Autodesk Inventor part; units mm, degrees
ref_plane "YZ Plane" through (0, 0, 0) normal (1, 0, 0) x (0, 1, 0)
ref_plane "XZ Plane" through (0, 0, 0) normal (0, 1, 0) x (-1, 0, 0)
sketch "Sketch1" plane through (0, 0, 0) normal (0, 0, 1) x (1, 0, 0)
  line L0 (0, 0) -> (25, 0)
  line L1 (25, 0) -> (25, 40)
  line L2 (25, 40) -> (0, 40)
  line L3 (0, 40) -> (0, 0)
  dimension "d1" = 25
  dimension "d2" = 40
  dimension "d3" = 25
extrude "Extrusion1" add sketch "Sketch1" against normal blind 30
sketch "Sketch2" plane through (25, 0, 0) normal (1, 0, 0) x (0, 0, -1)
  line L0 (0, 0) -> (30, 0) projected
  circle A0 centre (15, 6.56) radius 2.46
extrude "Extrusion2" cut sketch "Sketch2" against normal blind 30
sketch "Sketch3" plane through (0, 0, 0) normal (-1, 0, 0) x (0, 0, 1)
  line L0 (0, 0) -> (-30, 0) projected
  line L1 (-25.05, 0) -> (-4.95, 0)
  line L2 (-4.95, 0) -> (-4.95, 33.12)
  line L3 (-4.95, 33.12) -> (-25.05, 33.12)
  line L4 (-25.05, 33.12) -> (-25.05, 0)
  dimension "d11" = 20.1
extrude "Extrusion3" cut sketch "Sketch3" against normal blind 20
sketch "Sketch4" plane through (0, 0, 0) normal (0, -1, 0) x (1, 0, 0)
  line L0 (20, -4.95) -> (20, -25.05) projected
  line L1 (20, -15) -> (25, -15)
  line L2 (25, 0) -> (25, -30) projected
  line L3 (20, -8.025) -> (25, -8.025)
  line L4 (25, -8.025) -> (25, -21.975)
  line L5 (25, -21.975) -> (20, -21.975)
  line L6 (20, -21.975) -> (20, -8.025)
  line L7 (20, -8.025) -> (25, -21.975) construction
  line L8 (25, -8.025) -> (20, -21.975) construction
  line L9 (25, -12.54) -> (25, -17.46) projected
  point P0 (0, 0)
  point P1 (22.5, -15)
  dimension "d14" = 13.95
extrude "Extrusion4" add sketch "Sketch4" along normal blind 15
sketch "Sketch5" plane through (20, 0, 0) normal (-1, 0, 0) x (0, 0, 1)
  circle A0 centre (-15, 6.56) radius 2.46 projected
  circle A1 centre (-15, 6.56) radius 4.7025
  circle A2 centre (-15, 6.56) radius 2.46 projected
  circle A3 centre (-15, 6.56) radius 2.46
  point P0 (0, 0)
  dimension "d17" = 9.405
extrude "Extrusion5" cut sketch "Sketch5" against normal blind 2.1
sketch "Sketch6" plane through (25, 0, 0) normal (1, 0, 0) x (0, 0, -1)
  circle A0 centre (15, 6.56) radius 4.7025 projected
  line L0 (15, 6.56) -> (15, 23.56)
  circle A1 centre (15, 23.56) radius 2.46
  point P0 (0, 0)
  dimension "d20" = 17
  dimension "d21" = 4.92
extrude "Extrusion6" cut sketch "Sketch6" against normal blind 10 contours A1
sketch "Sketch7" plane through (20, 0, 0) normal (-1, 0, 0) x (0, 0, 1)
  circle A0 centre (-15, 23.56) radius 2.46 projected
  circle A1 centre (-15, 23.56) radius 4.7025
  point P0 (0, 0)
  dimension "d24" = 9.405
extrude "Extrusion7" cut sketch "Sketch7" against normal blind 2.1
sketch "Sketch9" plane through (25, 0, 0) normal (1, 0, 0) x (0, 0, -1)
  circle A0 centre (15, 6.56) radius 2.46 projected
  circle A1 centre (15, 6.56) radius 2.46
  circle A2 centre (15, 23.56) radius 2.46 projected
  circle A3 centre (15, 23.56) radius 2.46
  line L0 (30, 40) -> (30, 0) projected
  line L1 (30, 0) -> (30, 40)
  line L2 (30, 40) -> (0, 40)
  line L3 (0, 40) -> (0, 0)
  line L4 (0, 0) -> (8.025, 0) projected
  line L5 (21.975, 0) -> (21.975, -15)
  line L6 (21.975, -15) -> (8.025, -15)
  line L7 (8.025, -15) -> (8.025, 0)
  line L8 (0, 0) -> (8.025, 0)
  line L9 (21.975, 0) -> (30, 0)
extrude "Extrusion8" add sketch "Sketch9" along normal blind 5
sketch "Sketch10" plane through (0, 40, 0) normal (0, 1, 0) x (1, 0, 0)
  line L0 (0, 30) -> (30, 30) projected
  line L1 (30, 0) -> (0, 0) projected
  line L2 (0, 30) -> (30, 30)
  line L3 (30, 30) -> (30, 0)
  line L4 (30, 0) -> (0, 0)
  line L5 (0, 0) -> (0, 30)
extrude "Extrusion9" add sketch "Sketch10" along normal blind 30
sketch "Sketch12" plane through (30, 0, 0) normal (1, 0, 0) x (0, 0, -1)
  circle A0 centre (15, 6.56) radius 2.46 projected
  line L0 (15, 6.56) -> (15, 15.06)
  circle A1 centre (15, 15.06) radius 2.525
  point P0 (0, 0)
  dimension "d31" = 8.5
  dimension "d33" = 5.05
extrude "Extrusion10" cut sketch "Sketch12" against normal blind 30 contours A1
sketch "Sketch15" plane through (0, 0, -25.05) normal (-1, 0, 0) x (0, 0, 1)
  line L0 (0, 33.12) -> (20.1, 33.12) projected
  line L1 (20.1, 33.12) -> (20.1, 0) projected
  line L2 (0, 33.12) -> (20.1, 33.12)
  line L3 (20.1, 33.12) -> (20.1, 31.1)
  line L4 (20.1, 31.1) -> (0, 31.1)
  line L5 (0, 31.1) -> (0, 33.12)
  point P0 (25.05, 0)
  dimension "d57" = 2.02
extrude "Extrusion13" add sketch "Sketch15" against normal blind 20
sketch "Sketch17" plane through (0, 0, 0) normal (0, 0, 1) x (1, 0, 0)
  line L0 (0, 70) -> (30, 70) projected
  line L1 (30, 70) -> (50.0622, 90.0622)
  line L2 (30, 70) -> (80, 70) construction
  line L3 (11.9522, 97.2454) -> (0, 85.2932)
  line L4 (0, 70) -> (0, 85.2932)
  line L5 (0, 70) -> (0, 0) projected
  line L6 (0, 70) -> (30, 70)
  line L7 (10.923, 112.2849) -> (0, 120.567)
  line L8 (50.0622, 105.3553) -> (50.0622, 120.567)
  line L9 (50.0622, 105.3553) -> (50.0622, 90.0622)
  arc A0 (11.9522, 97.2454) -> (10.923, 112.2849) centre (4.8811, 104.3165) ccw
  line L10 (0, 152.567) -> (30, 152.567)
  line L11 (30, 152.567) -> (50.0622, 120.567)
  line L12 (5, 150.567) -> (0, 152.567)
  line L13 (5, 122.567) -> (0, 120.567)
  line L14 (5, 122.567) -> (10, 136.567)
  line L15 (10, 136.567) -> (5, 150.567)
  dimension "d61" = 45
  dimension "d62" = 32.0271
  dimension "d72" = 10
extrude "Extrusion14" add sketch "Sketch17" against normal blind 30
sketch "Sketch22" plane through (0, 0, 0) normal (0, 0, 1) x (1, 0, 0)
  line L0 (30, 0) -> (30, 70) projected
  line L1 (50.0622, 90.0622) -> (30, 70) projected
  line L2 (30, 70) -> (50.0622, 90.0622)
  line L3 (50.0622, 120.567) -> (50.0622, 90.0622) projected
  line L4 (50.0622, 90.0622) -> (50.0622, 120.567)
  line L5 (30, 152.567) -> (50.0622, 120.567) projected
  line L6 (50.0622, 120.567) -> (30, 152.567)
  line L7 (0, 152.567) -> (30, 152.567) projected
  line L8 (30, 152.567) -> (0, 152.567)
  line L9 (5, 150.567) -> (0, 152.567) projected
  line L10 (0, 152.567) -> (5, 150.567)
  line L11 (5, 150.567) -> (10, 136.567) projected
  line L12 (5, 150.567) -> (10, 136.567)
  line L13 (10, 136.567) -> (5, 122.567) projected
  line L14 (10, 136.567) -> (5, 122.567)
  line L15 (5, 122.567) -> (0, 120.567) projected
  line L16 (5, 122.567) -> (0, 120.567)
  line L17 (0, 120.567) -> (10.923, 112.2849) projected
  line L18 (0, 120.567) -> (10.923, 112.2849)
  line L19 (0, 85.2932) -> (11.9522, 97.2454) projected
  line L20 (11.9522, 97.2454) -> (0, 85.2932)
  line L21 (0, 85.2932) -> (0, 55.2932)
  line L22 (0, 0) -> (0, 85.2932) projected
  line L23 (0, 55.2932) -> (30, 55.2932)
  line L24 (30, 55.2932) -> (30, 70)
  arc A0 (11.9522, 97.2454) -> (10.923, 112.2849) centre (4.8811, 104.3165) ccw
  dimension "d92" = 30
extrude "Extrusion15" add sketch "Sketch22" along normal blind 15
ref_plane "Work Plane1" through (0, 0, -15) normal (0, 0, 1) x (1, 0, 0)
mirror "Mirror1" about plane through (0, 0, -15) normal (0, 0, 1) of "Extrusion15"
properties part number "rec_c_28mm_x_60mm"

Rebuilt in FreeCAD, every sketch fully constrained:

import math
import FreeCAD as App
import Part
import Sketcher
from FreeCAD import Vector
Q = App.Units.Quantity

doc = App.newDocument("Part")
body = doc.addObject("PartDesign::Body", "Body")

sketch1 = body.newObject("Sketcher::SketchObject", "Sketch")
sketch1.AttachmentSupport = (doc.getObject("XY_Plane"), [""])
sketch1.MapMode = "FlatFace"
sketch1.addGeometry([
    Part.LineSegment(Vector(0, 40, 0), Vector(0, 0, 0)),
    Part.LineSegment(Vector(0, 0, 0), Vector(25, 0, 0)),
    Part.LineSegment(Vector(25, 0, 0), Vector(25, 40, 0)),
    Part.LineSegment(Vector(25, 40, 0), Vector(0, 40, 0)),
], False)
sketch1.addConstraint([
    Sketcher.Constraint("Coincident", 0, 2, 1, 1),
    Sketcher.Constraint("Coincident", 1, 2, 2, 1),
    Sketcher.Constraint("Coincident", 2, 2, 3, 1),
    Sketcher.Constraint("Coincident", 3, 2, 0, 1),
    Sketcher.Constraint("Vertical", 0),
    Sketcher.Constraint("Horizontal", 1),
    Sketcher.Constraint("Vertical", 2),
    Sketcher.Constraint("Horizontal", 3),
    Sketcher.Constraint("Coincident", 0, 2, -1, 1),
    Sketcher.Constraint("DistanceX", 1, 1, 1, 2, 25.0),
    Sketcher.Constraint("DistanceY", 0, 2, 0, 1, 40.0),
])
pad1 = body.newObject("PartDesign::Pad", "Pad")
pad1.Profile = sketch1
pad1.Length = 30
pad1.Reversed = True

sketch2 = body.newObject("Sketcher::SketchObject", "Sketch001")
sketch2.AttachmentSupport = (doc.getObject("YZ_Plane"), [""])
sketch2.MapMode = "FlatFace"
sketch2.AttachmentOffset = App.Placement(Vector(0, 0, 25), App.Rotation())
sketch2.addGeometry(Part.Circle(Vector(6.6, -15, 0), Vector(0, 0, 1), 2.5), False)
sketch2.addConstraint([
    Sketcher.Constraint("Diameter", 0, 4.92),
    Sketcher.Constraint("DistanceY", 0, 3, -1, 1, 15.0),
    Sketcher.Constraint("DistanceX", -1, 1, 0, 3, 6.56),
])
pocket1 = body.newObject("PartDesign::Pocket", "Pocket")
pocket1.Profile = sketch2
pocket1.Length = 30

sketch3 = body.newObject("Sketcher::SketchObject", "Sketch002")
sketch3.AttachmentSupport = (doc.getObject("YZ_Plane"), [""])
sketch3.MapMode = "FlatFace"
sketch3.addGeometry([
    Part.LineSegment(Vector(0, -25, 0), Vector(0, -5, 0)),
    Part.LineSegment(Vector(0, -5, 0), Vector(33, -5, 0)),
    Part.LineSegment(Vector(33, -5, 0), Vector(33, -25, 0)),
    Part.LineSegment(Vector(33, -25, 0), Vector(0, -25, 0)),
], False)
sketch3.addConstraint([
    Sketcher.Constraint("Coincident", 0, 2, 1, 1),
    Sketcher.Constraint("Coincident", 1, 2, 2, 1),
    Sketcher.Constraint("Coincident", 2, 2, 3, 1),
    Sketcher.Constraint("Coincident", 3, 2, 0, 1),
    Sketcher.Constraint("Vertical", 0),
    Sketcher.Constraint("Horizontal", 1),
    Sketcher.Constraint("Vertical", 2),
    Sketcher.Constraint("Horizontal", 3),
    Sketcher.Constraint("PointOnObject", 0, 2, -2),
    Sketcher.Constraint("DistanceY", 0, 1, 0, 2, 20.1),
    Sketcher.Constraint("DistanceX", 1, 1, 1, 2, 33.12),
    Sketcher.Constraint("DistanceY", 0, 2, -1, 1, 4.95),
])
pocket2 = body.newObject("PartDesign::Pocket", "Pocket001")
pocket2.Profile = sketch3
pocket2.Length = 20
pocket2.Reversed = True

sketch4 = body.newObject("Sketcher::SketchObject", "Sketch003")
sketch4.AttachmentSupport = (doc.getObject("XZ_Plane"), [""])
sketch4.MapMode = "FlatFace"
sketch4.addGeometry([
    Part.LineSegment(Vector(25, -8, 0), Vector(20, -8, 0)),
    Part.LineSegment(Vector(20, -8, 0), Vector(20, -22, 0)),
    Part.LineSegment(Vector(20, -22, 0), Vector(25, -22, 0)),
    Part.LineSegment(Vector(25, -22, 0), Vector(25, -8, 0)),
], False)
sketch4.addConstraint([
    Sketcher.Constraint("Coincident", 0, 2, 1, 1),
    Sketcher.Constraint("Coincident", 1, 2, 2, 1),
    Sketcher.Constraint("Coincident", 2, 2, 3, 1),
    Sketcher.Constraint("Coincident", 3, 2, 0, 1),
    Sketcher.Constraint("Horizontal", 0),
    Sketcher.Constraint("Vertical", 1),
    Sketcher.Constraint("Horizontal", 2),
    Sketcher.Constraint("Vertical", 3),
    Sketcher.Constraint("DistanceY", 1, 2, 1, 1, 13.95),
    Sketcher.Constraint("DistanceX", 0, 2, 0, 1, 5.0),
    Sketcher.Constraint("DistanceX", -1, 1, 0, 2, 20.0),
    Sketcher.Constraint("DistanceY", 0, 2, -1, 1, 8.025),
])
pad2 = body.newObject("PartDesign::Pad", "Pad001")
pad2.Profile = sketch4
pad2.Length = 15

sketch5 = body.newObject("Sketcher::SketchObject", "Sketch004")
sketch5.AttachmentSupport = (doc.getObject("YZ_Plane"), [""])
sketch5.MapMode = "FlatFace"
sketch5.AttachmentOffset = App.Placement(Vector(0, 0, 20), App.Rotation())
sketch5.addGeometry([
    Part.Circle(Vector(6.6, -15, 0), Vector(0, 0, 1), 4.7),
    Part.Circle(Vector(6.6, -15, 0), Vector(0, 0, 1), 2.5),
], False)
sketch5.addConstraint([
    Sketcher.Constraint("Coincident", 1, 3, 0, 3),
    Sketcher.Constraint("Diameter", 0, 9.405),
    Sketcher.Constraint("Diameter", 1, 4.92),
    Sketcher.Constraint("DistanceY", 0, 3, -1, 1, 15.0),
    Sketcher.Constraint("DistanceX", -1, 1, 0, 3, 6.56),
])
pocket3 = body.newObject("PartDesign::Pocket", "Pocket002")
pocket3.Profile = sketch5
pocket3.Length = 2.1
pocket3.Reversed = True

sketch6 = body.newObject("Sketcher::SketchObject", "Sketch005")
sketch6.AttachmentSupport = (doc.getObject("YZ_Plane"), [""])
sketch6.MapMode = "FlatFace"
sketch6.AttachmentOffset = App.Placement(Vector(0, 0, 25), App.Rotation())
sketch6.addGeometry(Part.Circle(Vector(23.6, -15, 0), Vector(0, 0, 1), 2.5), False)
sketch6.addConstraint([
    Sketcher.Constraint("Diameter", 0, 4.92),
    Sketcher.Constraint("DistanceY", 0, 3, -1, 1, 15.0),
    Sketcher.Constraint("DistanceX", -1, 1, 0, 3, 23.56),
])
pocket4 = body.newObject("PartDesign::Pocket", "Pocket003")
pocket4.Profile = sketch6
pocket4.Length = 10

sketch7 = body.newObject("Sketcher::SketchObject", "Sketch006")
sketch7.AttachmentSupport = (doc.getObject("YZ_Plane"), [""])
sketch7.MapMode = "FlatFace"
sketch7.AttachmentOffset = App.Placement(Vector(0, 0, 20), App.Rotation())
sketch7.addGeometry([
    Part.Circle(Vector(23.6, -15, 0), Vector(0, 0, 1), 4.7),
    Part.Circle(Vector(23.6, -15, 0), Vector(0, 0, 1), 2.5),
], False)
sketch7.addConstraint([
    Sketcher.Constraint("Coincident", 1, 3, 0, 3),
    Sketcher.Constraint("Diameter", 0, 9.405),
    Sketcher.Constraint("Diameter", 1, 4.92),
    Sketcher.Constraint("DistanceY", 0, 3, -1, 1, 15.0),
    Sketcher.Constraint("DistanceX", -1, 1, 0, 3, 23.56),
])
pocket5 = body.newObject("PartDesign::Pocket", "Pocket004")
pocket5.Profile = sketch7
pocket5.Length = 2.1
pocket5.Reversed = True

sketch8 = body.newObject("Sketcher::SketchObject", "Sketch007")
sketch8.AttachmentSupport = (doc.getObject("YZ_Plane"), [""])
sketch8.MapMode = "FlatFace"
sketch8.AttachmentOffset = App.Placement(Vector(0, 0, 25), App.Rotation())
sketch8.addGeometry([
    Part.LineSegment(Vector(0, -30, 0), Vector(40, -30, 0)),
    Part.LineSegment(Vector(40, -30, 0), Vector(40, 0, 0)),
    Part.LineSegment(Vector(40, 0, 0), Vector(0, 0, 0)),
    Part.LineSegment(Vector(0, 0, 0), Vector(0, -8, 0)),
    Part.LineSegment(Vector(0, -8, 0), Vector(-15, -8, 0)),
    Part.LineSegment(Vector(-15, -8, 0), Vector(-15, -22, 0)),
    Part.LineSegment(Vector(-15, -22, 0), Vector(0, -22, 0)),
    Part.LineSegment(Vector(0, -22, 0), Vector(0, -30, 0)),
    Part.Circle(Vector(6.6, -15, 0), Vector(0, 0, 1), 2.5),
    Part.Circle(Vector(23.6, -15, 0), Vector(0, 0, 1), 2.5),
], False)
sketch8.addConstraint([
    Sketcher.Constraint("Coincident", 0, 2, 1, 1),
    Sketcher.Constraint("Coincident", 1, 2, 2, 1),
    Sketcher.Constraint("Coincident", 2, 2, 3, 1),
    Sketcher.Constraint("Coincident", 3, 2, 4, 1),
    Sketcher.Constraint("Coincident", 4, 2, 5, 1),
    Sketcher.Constraint("Coincident", 5, 2, 6, 1),
    Sketcher.Constraint("Coincident", 6, 2, 7, 1),
    Sketcher.Constraint("Coincident", 7, 2, 0, 1),
    Sketcher.Constraint("Horizontal", 0),
    Sketcher.Constraint("Vertical", 1),
    Sketcher.Constraint("Horizontal", 2),
    Sketcher.Constraint("Vertical", 3),
    Sketcher.Constraint("Horizontal", 4),
    Sketcher.Constraint("Vertical", 5),
    Sketcher.Constraint("Horizontal", 6),
    Sketcher.Constraint("Vertical", 7),
    Sketcher.Constraint("Coincident", 2, 2, -1, 1),
    Sketcher.Constraint("Equal", 8, 9),
    Sketcher.Constraint("PointOnObject", 6, 2, -2),
    Sketcher.Constraint("Horizontal", 8, 3, 9, 3),
    Sketcher.Constraint("Equal", 3, 7),
    Sketcher.Constraint("Diameter", 8, 4.92),
    Sketcher.Constraint("DistanceX", 0, 1, 0, 2, 40.0),
    Sketcher.Constraint("DistanceX", 4, 2, 4, 1, 15.0),
    Sketcher.Constraint("DistanceY", 1, 1, 1, 2, 30.0),
    Sketcher.Constraint("DistanceY", 8, 3, -1, 1, 15.0),
    Sketcher.Constraint("DistanceX", 8, 3, 9, 3, 17.0),
    Sketcher.Constraint("DistanceY", 5, 2, 5, 1, 13.95),
    Sketcher.Constraint("DistanceX", -1, 1, 8, 3, 6.56),
])
pad3 = body.newObject("PartDesign::Pad", "Pad002")
pad3.Profile = sketch8
pad3.Length = 5

sketch9 = body.newObject("Sketcher::SketchObject", "Sketch008")
sketch9.AttachmentSupport = (doc.getObject("XZ_Plane"), [""])
sketch9.MapMode = "FlatFace"
sketch9.AttachmentOffset = App.Placement(Vector(0, 0, -40), App.Rotation())
sketch9.addGeometry([
    Part.LineSegment(Vector(30, -30, 0), Vector(0, -30, 0)),
    Part.LineSegment(Vector(0, -30, 0), Vector(0, 0, 0)),
    Part.LineSegment(Vector(0, 0, 0), Vector(30, 0, 0)),
    Part.LineSegment(Vector(30, 0, 0), Vector(30, -30, 0)),
], False)
sketch9.addConstraint([
    Sketcher.Constraint("Coincident", 0, 2, 1, 1),
    Sketcher.Constraint("Coincident", 1, 2, 2, 1),
    Sketcher.Constraint("Coincident", 2, 2, 3, 1),
    Sketcher.Constraint("Coincident", 3, 2, 0, 1),
    Sketcher.Constraint("Horizontal", 0),
    Sketcher.Constraint("Vertical", 1),
    Sketcher.Constraint("Horizontal", 2),
    Sketcher.Constraint("Vertical", 3),
    Sketcher.Constraint("Coincident", 1, 2, -1, 1),
    Sketcher.Constraint("Equal", 2, 1),
    Sketcher.Constraint("DistanceX", 0, 2, 0, 1, 30.0),
])
pad4 = body.newObject("PartDesign::Pad", "Pad003")
pad4.Profile = sketch9
pad4.Length = 30
pad4.Reversed = True

sketch10 = body.newObject("Sketcher::SketchObject", "Sketch009")
sketch10.AttachmentSupport = (doc.getObject("YZ_Plane"), [""])
sketch10.MapMode = "FlatFace"
sketch10.AttachmentOffset = App.Placement(Vector(0, 0, 30), App.Rotation())
sketch10.addGeometry(Part.Circle(Vector(15.1, -15, 0), Vector(0, 0, 1), 2.5), False)
sketch10.addConstraint([
    Sketcher.Constraint("Diameter", 0, 5.05),
    Sketcher.Constraint("DistanceY", 0, 3, -1, 1, 15.0),
    Sketcher.Constraint("DistanceX", -1, 1, 0, 3, 15.06),
])
pocket6 = body.newObject("PartDesign::Pocket", "Pocket005")
pocket6.Profile = sketch10
pocket6.Length = 30

sketch11 = body.newObject("Sketcher::SketchObject", "Sketch010")
sketch11.AttachmentSupport = (doc.getObject("YZ_Plane"), [""])
sketch11.MapMode = "FlatFace"
sketch11.addGeometry([
    Part.LineSegment(Vector(33.1, -5, 0), Vector(33.1, -25.1, 0)),
    Part.LineSegment(Vector(33.1, -25.1, 0), Vector(31.1, -25.1, 0)),
    Part.LineSegment(Vector(31.1, -25.1, 0), Vector(31.1, -5, 0)),
    Part.LineSegment(Vector(31.1, -5, 0), Vector(33.1, -5, 0)),
], False)
sketch11.addConstraint([
    Sketcher.Constraint("Coincident", 0, 2, 1, 1),
    Sketcher.Constraint("Coincident", 1, 2, 2, 1),
    Sketcher.Constraint("Coincident", 2, 2, 3, 1),
    Sketcher.Constraint("Coincident", 3, 2, 0, 1),
    Sketcher.Constraint("Vertical", 0),
    Sketcher.Constraint("Horizontal", 1),
    Sketcher.Constraint("Vertical", 2),
    Sketcher.Constraint("Horizontal", 3),
    Sketcher.Constraint("DistanceX", 1, 2, 1, 1, 2.02),
    Sketcher.Constraint("DistanceY", 0, 2, 0, 1, 20.1),
    Sketcher.Constraint("DistanceX", -1, 1, 1, 2, 31.1),
    Sketcher.Constraint("DistanceY", 0, 2, -1, 1, 25.05),
])
pad5 = body.newObject("PartDesign::Pad", "Pad004")
pad5.Profile = sketch11
pad5.Length = 20

sketch12 = body.newObject("Sketcher::SketchObject", "Sketch011")
sketch12.AttachmentSupport = (doc.getObject("XY_Plane"), [""])
sketch12.MapMode = "FlatFace"
sketch12.addGeometry([
    Part.LineSegment(Vector(0, 85, 0), Vector(0, 70, 0)),
    Part.LineSegment(Vector(0, 70, 0), Vector(30, 70, 0)),
    Part.LineSegment(Vector(30, 70, 0), Vector(50, 90, 0)),
    Part.LineSegment(Vector(50, 90, 0), Vector(50, 121, 0)),
    Part.LineSegment(Vector(50, 121, 0), Vector(30, 153, 0)),
    Part.LineSegment(Vector(30, 153, 0), Vector(0, 153, 0)),
    Part.LineSegment(Vector(0, 153, 0), Vector(5, 151, 0)),
    Part.LineSegment(Vector(5, 151, 0), Vector(10, 137, 0)),
    Part.LineSegment(Vector(10, 137, 0), Vector(5, 123, 0)),
    Part.LineSegment(Vector(5, 123, 0), Vector(0, 121, 0)),
    Part.LineSegment(Vector(0, 121, 0), Vector(11, 112, 0)),
    Part.ArcOfCircle(Part.Circle(Vector(5, 104, 0), Vector(0, 0, 1), 10), math.radians(-45), math.radians(53)),
    Part.LineSegment(Vector(12, 97, 0), Vector(0, 85, 0)),
], False)
sketch12.addConstraint([
    Sketcher.Constraint("Coincident", 0, 2, 1, 1),
    Sketcher.Constraint("Coincident", 1, 2, 2, 1),
    Sketcher.Constraint("Coincident", 2, 2, 3, 1),
    Sketcher.Constraint("Coincident", 3, 2, 4, 1),
    Sketcher.Constraint("Coincident", 4, 2, 5, 1),
    Sketcher.Constraint("Coincident", 5, 2, 6, 1),
    Sketcher.Constraint("Coincident", 6, 2, 7, 1),
    Sketcher.Constraint("Coincident", 7, 2, 8, 1),
    Sketcher.Constraint("Coincident", 8, 2, 9, 1),
    Sketcher.Constraint("Coincident", 9, 2, 10, 1),
    Sketcher.Constraint("Tangent", 10, 2, 11, 2),
    Sketcher.Constraint("Tangent", 11, 1, 12, 1),
    Sketcher.Constraint("Coincident", 12, 2, 0, 1),
    Sketcher.Constraint("Vertical", 0),
    Sketcher.Constraint("Horizontal", 1),
    Sketcher.Constraint("Vertical", 3),
    Sketcher.Constraint("Horizontal", 5),
    Sketcher.Constraint("PointOnObject", 0, 2, -2),
    Sketcher.Constraint("PointOnObject", 5, 2, -2),
    Sketcher.Constraint("PointOnObject", 9, 2, -2),
    Sketcher.Constraint("Parallel", 2, 12),
    Sketcher.Constraint("Horizontal", 3, 2, 9, 2),
    Sketcher.Constraint("Vertical", 1, 2, 4, 2),
    Sketcher.Constraint("Vertical", 6, 2, 8, 2),
    Sketcher.Constraint("Equal", 7, 8),
    Sketcher.Constraint("Equal", 6, 9),
    Sketcher.Constraint("Radius", 11, 10.0),
    Sketcher.Constraint("Angle", 2, Q("45 deg")),
    Sketcher.Constraint("DistanceX", -1, 1, 7, 2, 10.0),
    Sketcher.Constraint("DistanceX", 1, 1, 1, 2, 30.0),
    Sketcher.Constraint("DistanceY", -1, 1, 0, 2, 70.0),
    Sketcher.Constraint("DistanceX", -1, 1, 6, 2, 5.0),
    Sketcher.Constraint("DistanceY", 3, 2, 4, 2, 32.0),
    Sketcher.Constraint("DistanceY", 6, 2, 5, 2, 2.0),
    Sketcher.Constraint("Angle", 10, Q("-37.1703 deg")),
    Sketcher.Constraint("Distance", 4, 37.769),
    Sketcher.Constraint("Distance", 12, 16.903),
    Sketcher.Constraint("DistanceY", 0, 2, 0, 1, 15.2932),
])
pad6 = body.newObject("PartDesign::Pad", "Pad005")
pad6.Profile = sketch12
pad6.Length = 30
pad6.Reversed = True

sketch13 = body.newObject("Sketcher::SketchObject", "Sketch012")
sketch13.AttachmentSupport = (doc.getObject("XY_Plane"), [""])
sketch13.MapMode = "FlatFace"
sketch13.addGeometry([
    Part.LineSegment(Vector(0, 55, 0), Vector(30, 55, 0)),
    Part.LineSegment(Vector(30, 55, 0), Vector(30, 70, 0)),
    Part.LineSegment(Vector(30, 70, 0), Vector(50, 90, 0)),
    Part.LineSegment(Vector(50, 90, 0), Vector(50, 121, 0)),
    Part.LineSegment(Vector(50, 121, 0), Vector(30, 153, 0)),
    Part.LineSegment(Vector(30, 153, 0), Vector(0, 153, 0)),
    Part.LineSegment(Vector(0, 153, 0), Vector(5, 151, 0)),
    Part.LineSegment(Vector(5, 151, 0), Vector(10, 137, 0)),
    Part.LineSegment(Vector(10, 137, 0), Vector(5, 123, 0)),
    Part.LineSegment(Vector(5, 123, 0), Vector(0, 121, 0)),
    Part.LineSegment(Vector(0, 121, 0), Vector(11, 112, 0)),
    Part.ArcOfCircle(Part.Circle(Vector(5, 104, 0), Vector(0, 0, 1), 10), math.radians(-45), math.radians(53)),
    Part.LineSegment(Vector(12, 97, 0), Vector(0, 85, 0)),
    Part.LineSegment(Vector(0, 85, 0), Vector(0, 55, 0)),
], False)
sketch13.addConstraint([
    Sketcher.Constraint("Coincident", 0, 2, 1, 1),
    Sketcher.Constraint("Coincident", 1, 2, 2, 1),
    Sketcher.Constraint("Coincident", 2, 2, 3, 1),
    Sketcher.Constraint("Coincident", 3, 2, 4, 1),
    Sketcher.Constraint("Coincident", 4, 2, 5, 1),
    Sketcher.Constraint("Coincident", 5, 2, 6, 1),
    Sketcher.Constraint("Coincident", 6, 2, 7, 1),
    Sketcher.Constraint("Coincident", 7, 2, 8, 1),
    Sketcher.Constraint("Coincident", 8, 2, 9, 1),
    Sketcher.Constraint("Coincident", 9, 2, 10, 1),
    Sketcher.Constraint("Tangent", 10, 2, 11, 2),
    Sketcher.Constraint("Tangent", 11, 1, 12, 1),
    Sketcher.Constraint("Coincident", 12, 2, 13, 1),
    Sketcher.Constraint("Coincident", 13, 2, 0, 1),
    Sketcher.Constraint("Horizontal", 0),
    Sketcher.Constraint("Vertical", 1),
    Sketcher.Constraint("Vertical", 3),
    Sketcher.Constraint("Horizontal", 5),
    Sketcher.Constraint("Vertical", 13),
    Sketcher.Constraint("PointOnObject", 5, 2, -2),
    Sketcher.Constraint("PointOnObject", 9, 2, -2),
    Sketcher.Constraint("PointOnObject", 12, 2, -2),
    Sketcher.Constraint("Parallel", 2, 12),
    Sketcher.Constraint("Horizontal", 3, 2, 9, 2),
    Sketcher.Constraint("Vertical", 1, 2, 4, 2),
    Sketcher.Constraint("Vertical", 6, 2, 8, 2),
    Sketcher.Constraint("Equal", 5, 13),
    Sketcher.Constraint("Equal", 7, 8),
    Sketcher.Constraint("Equal", 6, 9),
    Sketcher.Constraint("DistanceX", 0, 1, 0, 2, 30.0),
    Sketcher.Constraint("Radius", 11, 10.0),
    Sketcher.Constraint("DistanceY", 3, 2, 6, 2, 30.0),
    Sketcher.Constraint("Angle", 2, Q("45 deg")),
    Sketcher.Constraint("DistanceY", -1, 1, 1, 2, 70.0),
    Sketcher.Constraint("DistanceX", -1, 1, 6, 2, 5.0),
    Sketcher.Constraint("DistanceX", -1, 1, 7, 2, 10.0),
    Sketcher.Constraint("DistanceY", 3, 2, 4, 2, 32.0),
    Sketcher.Constraint("Angle", 10, Q("-37.1703 deg")),
    Sketcher.Constraint("Distance", 4, 37.769),
    Sketcher.Constraint("Distance", 12, 16.903),
    Sketcher.Constraint("DistanceY", 1, 1, 1, 2, 14.7068),
])
pad7 = body.newObject("PartDesign::Pad", "Pad006")
pad7.Profile = sketch13
pad7.Length = 15
doc.recompute()

datumplane = body.newObject("PartDesign::Plane", "DatumPlane")
datumplane.AttachmentSupport = (doc.getObject("XY_Plane"), [""])
datumplane.MapMode = "FlatFace"
datumplane.AttachmentOffset = App.Placement(Vector(0, 0, -15), App.Rotation())
mirrored = body.newObject("PartDesign::Mirrored", "Mirrored")
mirrored.Originals = [pad7]
mirrored.MirrorPlane = (datumplane, [""])
body.Tip = mirrored

doc.recompute()
